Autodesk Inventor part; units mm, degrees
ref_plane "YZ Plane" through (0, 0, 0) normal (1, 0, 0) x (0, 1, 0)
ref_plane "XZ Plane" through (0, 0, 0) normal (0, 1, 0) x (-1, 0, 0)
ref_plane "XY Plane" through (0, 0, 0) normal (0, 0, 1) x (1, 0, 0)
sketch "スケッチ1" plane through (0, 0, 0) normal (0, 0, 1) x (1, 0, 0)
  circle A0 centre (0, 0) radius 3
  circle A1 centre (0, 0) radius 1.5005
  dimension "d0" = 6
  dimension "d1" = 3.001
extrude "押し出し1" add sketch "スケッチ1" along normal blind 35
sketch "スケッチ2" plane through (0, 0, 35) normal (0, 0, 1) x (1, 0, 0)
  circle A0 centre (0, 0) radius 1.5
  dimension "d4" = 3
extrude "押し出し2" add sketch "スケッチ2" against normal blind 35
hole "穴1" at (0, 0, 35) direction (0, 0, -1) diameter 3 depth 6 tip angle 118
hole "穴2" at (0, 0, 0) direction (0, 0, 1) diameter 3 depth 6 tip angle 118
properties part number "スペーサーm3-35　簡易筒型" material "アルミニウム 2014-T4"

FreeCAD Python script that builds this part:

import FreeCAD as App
import Part
import Sketcher

doc = App.newDocument("Part")
params = doc.addObject("Spreadsheet::Sheet", "Params")
for row, (alias, value) in enumerate([
    ("sketch1_diameter", "6 mm"),
    ("pad1_length", "35 mm"),
    ("sketch2_diameter", "3 mm"),
    ("pad2_length", "35 mm"),
    ("sketch3_diameter", "3 mm"),
    ("hole_diameter", "3 mm"),
    ("hole_depth", "6 mm"),
    ("sketch4_diameter", "3 mm"),
    ("hole2_diameter", "3 mm"),
    ("hole2_depth", "6 mm"),
], start=1):
    params.set(f"A{row}", alias)
    params.set(f"B{row}", "=" + value)
    params.setAlias(f"B{row}", alias)

body = doc.addObject("PartDesign::Body", "Body")
body.AllowCompound = True

# Sketch on XY plane
sketch1 = body.newObject("Sketcher::SketchObject", "Sketch")
sketch1.AttachmentSupport = (doc.getObject("XY_Plane"), [""])
sketch1.MapMode = "FlatFace"
sketch1.addGeometry([
    Part.Circle(App.Vector(0, 0, 0), App.Vector(0, 0, 1), 3),
    Part.Circle(App.Vector(0, 0, 0), App.Vector(0, 0, 1), 1.5005),
], False)
sketch1.addConstraint([
    Sketcher.Constraint("Coincident", 0, 3, -1, 1),
    Sketcher.Constraint("Coincident", 1, 3, -1, 1),
    Sketcher.Constraint("Diameter", 0, 6.0),
    Sketcher.Constraint("Diameter", 1, 3.001),
])
sketch1.setExpression("Constraints[2]", "Params.sketch1_diameter")
pad1 = body.newObject("PartDesign::Pad", "Pad")
pad1.Profile = sketch1
pad1.setExpression("Length", "Params.pad1_length")

# Sketch on XY plane
sketch2 = body.newObject("Sketcher::SketchObject", "Sketch001")
sketch2.AttachmentSupport = (doc.getObject("XY_Plane"), [""])
sketch2.MapMode = "FlatFace"
sketch2.AttachmentOffset = App.Placement(App.Vector(0, 0, 35), App.Rotation())
sketch2.addGeometry(Part.Circle(App.Vector(0, 0, 0), App.Vector(0, 0, 1), 1.5), False)
sketch2.addConstraint([
    Sketcher.Constraint("Coincident", 0, 3, -1, 1),
    Sketcher.Constraint("Diameter", 0, 3.0),
])
sketch2.setExpression("Constraints[1]", "Params.sketch2_diameter")
pad2 = body.newObject("PartDesign::Pad", "Pad001")
pad2.Profile = sketch2
pad2.setExpression("Length", "Params.pad2_length")
pad2.Reversed = True

# Sketch on XY plane
sketch3 = body.newObject("Sketcher::SketchObject", "Sketch002")
sketch3.AttachmentSupport = (doc.getObject("XY_Plane"), [""])
sketch3.MapMode = "FlatFace"
sketch3.AttachmentOffset = App.Placement(App.Vector(0, 0, 35), App.Rotation())
sketch3.addGeometry(Part.Circle(App.Vector(0, 0, 0), App.Vector(0, 0, 1), 1.5), False)
sketch3.addConstraint([
    Sketcher.Constraint("Coincident", 0, 3, -1, 1),
    Sketcher.Constraint("Diameter", 0, 3.0),
])
sketch3.setExpression("Constraints[1]", "Params.sketch3_diameter")
doc.recompute()
hole = body.newObject("PartDesign::Hole", "Hole")
hole.Profile = sketch3
hole.ThreadType = "None"
hole.setExpression("Diameter", "Params.hole_diameter")
hole.DepthType = "Dimension"
hole.setExpression("Depth", "Params.hole_depth")
hole.DrillPoint = "Angled"
hole.DrillPointAngle = 118

# Sketch on XY plane
sketch4 = body.newObject("Sketcher::SketchObject", "Sketch003")
sketch4.AttachmentSupport = (doc.getObject("XY_Plane"), [""])
sketch4.MapMode = "FlatFace"
sketch4.addGeometry(Part.Circle(App.Vector(0, 0, 0), App.Vector(0, 0, 1), 1.5), False)
sketch4.addConstraint([
    Sketcher.Constraint("Coincident", 0, 3, -1, 1),
    Sketcher.Constraint("Diameter", 0, 3.0),
])
sketch4.setExpression("Constraints[1]", "Params.sketch4_diameter")
doc.recompute()
hole2 = body.newObject("PartDesign::Hole", "Hole001")
hole2.Profile = sketch4
hole2.ThreadType = "None"
hole2.setExpression("Diameter", "Params.hole2_diameter")
hole2.DepthType = "Dimension"
hole2.setExpression("Depth", "Params.hole2_depth")
hole2.DrillPoint = "Angled"
hole2.DrillPointAngle = 118
hole2.Reversed = True

doc.recompute()
